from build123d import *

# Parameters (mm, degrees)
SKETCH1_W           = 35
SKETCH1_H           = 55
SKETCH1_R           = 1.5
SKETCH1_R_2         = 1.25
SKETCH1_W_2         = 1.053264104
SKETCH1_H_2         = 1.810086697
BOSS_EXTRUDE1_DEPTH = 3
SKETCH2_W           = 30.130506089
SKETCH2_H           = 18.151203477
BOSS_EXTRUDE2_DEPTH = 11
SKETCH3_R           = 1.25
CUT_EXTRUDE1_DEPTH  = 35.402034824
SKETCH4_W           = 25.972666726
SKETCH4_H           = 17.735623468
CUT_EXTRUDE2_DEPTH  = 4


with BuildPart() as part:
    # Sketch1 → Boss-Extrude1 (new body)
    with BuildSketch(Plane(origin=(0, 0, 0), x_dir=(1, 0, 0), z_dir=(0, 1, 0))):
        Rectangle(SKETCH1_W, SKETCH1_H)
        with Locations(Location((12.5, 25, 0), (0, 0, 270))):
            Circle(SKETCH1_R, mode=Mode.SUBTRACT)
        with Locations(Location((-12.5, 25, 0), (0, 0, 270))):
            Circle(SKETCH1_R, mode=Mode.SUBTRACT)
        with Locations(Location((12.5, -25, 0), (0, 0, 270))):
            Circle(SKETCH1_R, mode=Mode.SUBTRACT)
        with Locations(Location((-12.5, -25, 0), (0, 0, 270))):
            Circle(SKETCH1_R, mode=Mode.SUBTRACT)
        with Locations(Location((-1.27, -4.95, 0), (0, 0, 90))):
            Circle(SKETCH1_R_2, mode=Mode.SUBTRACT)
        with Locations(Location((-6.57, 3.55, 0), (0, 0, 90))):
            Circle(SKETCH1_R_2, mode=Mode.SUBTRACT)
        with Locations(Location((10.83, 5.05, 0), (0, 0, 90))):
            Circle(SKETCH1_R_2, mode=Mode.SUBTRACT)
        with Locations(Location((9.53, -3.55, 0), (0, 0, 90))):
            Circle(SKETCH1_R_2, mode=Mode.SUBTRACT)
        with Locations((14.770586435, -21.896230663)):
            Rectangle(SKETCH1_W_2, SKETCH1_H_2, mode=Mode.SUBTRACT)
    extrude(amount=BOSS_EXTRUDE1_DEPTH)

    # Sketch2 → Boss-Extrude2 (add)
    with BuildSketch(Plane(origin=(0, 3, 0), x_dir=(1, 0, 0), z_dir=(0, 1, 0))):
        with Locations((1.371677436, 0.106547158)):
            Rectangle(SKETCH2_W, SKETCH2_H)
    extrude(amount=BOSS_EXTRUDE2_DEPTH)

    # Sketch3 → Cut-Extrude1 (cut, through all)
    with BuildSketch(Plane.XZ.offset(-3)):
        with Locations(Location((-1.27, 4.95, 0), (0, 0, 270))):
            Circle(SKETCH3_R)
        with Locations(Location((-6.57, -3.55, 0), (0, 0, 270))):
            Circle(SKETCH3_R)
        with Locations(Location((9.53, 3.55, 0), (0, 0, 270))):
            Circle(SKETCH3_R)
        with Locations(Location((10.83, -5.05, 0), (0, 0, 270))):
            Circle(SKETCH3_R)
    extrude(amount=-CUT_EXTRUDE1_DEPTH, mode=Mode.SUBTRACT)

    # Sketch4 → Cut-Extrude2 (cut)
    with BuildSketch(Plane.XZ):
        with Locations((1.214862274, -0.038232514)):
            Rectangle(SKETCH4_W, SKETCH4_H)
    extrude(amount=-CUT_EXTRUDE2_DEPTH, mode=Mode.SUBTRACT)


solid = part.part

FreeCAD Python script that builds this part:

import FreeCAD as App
import Part
import Sketcher
from FreeCAD import Vector


def add_polygon(sketch, points):
    """Adds a closed chain of lines whose ends are joined by coincident constraints."""
    first, n = sketch.GeometryCount, len(points)
    for a, b in zip(points, points[1:] + points[:1]):
        sketch.addGeometry(Part.LineSegment(App.Vector(*a, 0), App.Vector(*b, 0)), False)
    for i in range(n):
        sketch.addConstraint(Sketcher.Constraint("Coincident", first + i, 2, first + (i + 1) % n, 1))

doc = App.newDocument("Part")
params = doc.addObject("Spreadsheet::Sheet", "Params")
for row, (alias, value) in enumerate([
    ("sketch1_diameter", "3 mm"),
    ("sketch1_diameter2", "2.5 mm"),
    ("sketch1_width", "35 mm"),
    ("sketch1_height", "55 mm"),
    ("pad1_length", "3 mm"),
    ("pad2_length", "11 mm"),
    ("sketch3_diameter", "2.5 mm"),
    ("pocket2_length", "4 mm"),
], start=1):
    params.set(f"A{row}", alias)
    params.set(f"B{row}", "=" + value)
    params.setAlias(f"B{row}", alias)

body = doc.addObject("PartDesign::Body", "Body")

# Sketch on XZ plane
sketch1 = doc.addObject("Sketcher::SketchObject", "Sketch")
body.addObject(sketch1)
sketch1.AttachmentSupport = (doc.XZ_Plane, [""])
sketch1.MapMode = "FlatFace"
add_polygon(sketch1, [(-17.5, -27.5), (-17.5, 27.5), (17.5, 27.5), (17.5, -27.5)])  # lines 0-3
sketch1.addGeometry(Part.Circle(Vector(-12.5, 25, 0), Vector(0, 0, 1), 1.5), False)  # 4
sketch1.addGeometry(Part.Circle(Vector(-1.27, 4.95, 0), Vector(0, 0, 1), 1.25), False)  # 5
sketch1.addGeometry(Part.Circle(Vector(12.5, 25, 0), Vector(0, 0, 1), 1.5), False)  # 6
add_polygon(sketch1, [(15.297218, 22.801274), (14.243954, 22.801274), (14.243954, 20.991187), (15.297218, 20.991187)])  # lines 7-10
sketch1.addGeometry(Part.Circle(Vector(9.53, 3.55, 0), Vector(0, 0, 1), 1.25), False)  # 11
sketch1.addGeometry(Part.Circle(Vector(-6.57, -3.55, 0), Vector(0, 0, 1), 1.25), False)  # 12
sketch1.addGeometry(Part.Circle(Vector(-12.5, -25, 0), Vector(0, 0, 1), 1.5), False)  # 13
sketch1.addGeometry(Part.Circle(Vector(10.83, -5.05, 0), Vector(0, 0, 1), 1.25), False)  # 14
sketch1.addGeometry(Part.Circle(Vector(12.5, -25, 0), Vector(0, 0, 1), 1.5), False)  # 15
sketch1.addConstraint([
    Sketcher.Constraint("Vertical", 0),
    Sketcher.Constraint("Horizontal", 1),
    Sketcher.Constraint("Vertical", 2),
    Sketcher.Constraint("Horizontal", 3),
    Sketcher.Constraint("Horizontal", 7),
    Sketcher.Constraint("Vertical", 8),
    Sketcher.Constraint("Horizontal", 9),
    Sketcher.Constraint("Vertical", 10),
    Sketcher.Constraint("Equal", 4, 6),
    Sketcher.Constraint("Equal", 5, 11),
    Sketcher.Constraint("Equal", 11, 12),
    Sketcher.Constraint("Equal", 6, 13),
    Sketcher.Constraint("Equal", 12, 14),
    Sketcher.Constraint("Equal", 13, 15),
    Sketcher.Constraint("Symmetric", 6, 3, 13, 3, -1, 1),
    Sketcher.Constraint("Symmetric", 4, 3, 15, 3, -1, 1),
    Sketcher.Constraint("Symmetric", 0, 2, 2, 2, -1, 1),
    Sketcher.Constraint("Symmetric", 4, 3, 6, 3, -2),
    Sketcher.Constraint("Diameter", 4, 3.0),
    Sketcher.Constraint("Diameter", 5, 2.5),
    Sketcher.Constraint("DistanceX", 1, 1, 1, 2, 35.0),
    Sketcher.Constraint("DistanceY", 0, 1, 0, 2, 55.0),
    Sketcher.Constraint("DistanceY", -1, 1, 4, 3, 25.0),
    Sketcher.Constraint("DistanceX", 4, 3, 6, 3, 25.0),
    Sketcher.Constraint("DistanceY", 14, 3, 5, 3, 10.0),
    Sketcher.Constraint("DistanceX", 5, 3, 11, 3, 10.8),
    Sketcher.Constraint("DistanceY", 11, 3, 5, 3, 1.4),
    Sketcher.Constraint("DistanceX", 12, 3, 5, 3, 5.3),
    Sketcher.Constraint("DistanceY", 12, 3, 5, 3, 8.5),
    Sketcher.Constraint("DistanceX", 11, 3, 14, 3, 1.3),
    Sketcher.Constraint("DistanceX", 5, 3, -1, 1, 1.27),
    Sketcher.Constraint("DistanceY", -1, 1, 5, 3, 4.95),
    Sketcher.Constraint("DistanceX", 7, 2, 7, 1, 1.053264),
    Sketcher.Constraint("DistanceY", 8, 2, 8, 1, 1.810087),
    Sketcher.Constraint("DistanceX", -1, 1, 9, 2, 15.297218),
    Sketcher.Constraint("DistanceY", -1, 1, 7, 2, 22.801274),
])
sketch1.setExpression("Constraints[26]", "Params.sketch1_diameter")
sketch1.setExpression("Constraints[27]", "Params.sketch1_diameter2")
sketch1.setExpression("Constraints[28]", "Params.sketch1_width")
sketch1.setExpression("Constraints[29]", "Params.sketch1_height")
pad1 = doc.addObject("PartDesign::Pad", "Pad")
body.addObject(pad1)
pad1.Profile = sketch1
pad1.setExpression("Length", "Params.pad1_length")
pad1.Reversed = True

# Sketch on XZ plane
sketch2 = doc.addObject("Sketcher::SketchObject", "Sketch001")
body.addObject(sketch2)
sketch2.AttachmentSupport = (doc.XZ_Plane, [""])
sketch2.MapMode = "FlatFace"
sketch2.AttachmentOffset = App.Placement(Vector(0, 0, -3), App.Rotation())
add_polygon(sketch2, [(-13.693576, -9.182149), (-13.693576, 8.969055), (16.43693, 8.969055), (16.43693, -9.182149)])  # lines 0-3
sketch2.addConstraint([
    Sketcher.Constraint("Vertical", 0),
    Sketcher.Constraint("Horizontal", 1),
    Sketcher.Constraint("Vertical", 2),
    Sketcher.Constraint("Horizontal", 3),
    Sketcher.Constraint("DistanceX", 1, 1, 1, 2, 30.130506),
    Sketcher.Constraint("DistanceY", 0, 1, 0, 2, 18.151203),
    Sketcher.Constraint("DistanceX", -1, 1, 1, 2, 16.43693),
    Sketcher.Constraint("DistanceY", 2, 2, -1, 1, 9.182149),
])
pad2 = doc.addObject("PartDesign::Pad", "Pad001")
body.addObject(pad2)
pad2.Profile = sketch2
pad2.setExpression("Length", "Params.pad2_length")
pad2.Reversed = True

# Sketch on XZ plane
sketch3 = doc.addObject("Sketcher::SketchObject", "Sketch002")
body.addObject(sketch3)
sketch3.AttachmentSupport = (doc.XZ_Plane, [""])
sketch3.MapMode = "FlatFace"
sketch3.AttachmentOffset = App.Placement(Vector(0, 0, -3), App.Rotation())
sketch3.addGeometry([
    Part.Circle(Vector(-1.27, 4.95, 0), Vector(0, 0, 1), 1.25),
    Part.Circle(Vector(-6.57, -3.55, 0), Vector(0, 0, 1), 1.25),
    Part.Circle(Vector(9.53, 3.55, 0), Vector(0, 0, 1), 1.25),
    Part.Circle(Vector(10.83, -5.05, 0), Vector(0, 0, 1), 1.25),
], False)
sketch3.addConstraint([
    Sketcher.Constraint("Equal", 0, 1),
    Sketcher.Constraint("Equal", 1, 2),
    Sketcher.Constraint("Equal", 2, 3),
    Sketcher.Constraint("Diameter", 0, 2.5),
    Sketcher.Constraint("DistanceY", 3, 3, 0, 3, 10.0),
    Sketcher.Constraint("DistanceX", 1, 3, 0, 3, 5.3),
    Sketcher.Constraint("DistanceY", 1, 3, 0, 3, 8.5),
    Sketcher.Constraint("DistanceX", 0, 3, 2, 3, 10.8),
    Sketcher.Constraint("DistanceY", 2, 3, 0, 3, 1.4),
    Sketcher.Constraint("DistanceX", 2, 3, 3, 3, 1.3),
    Sketcher.Constraint("DistanceX", 0, 3, -1, 1, 1.27),
    Sketcher.Constraint("DistanceY", -1, 1, 0, 3, 4.95),
])
sketch3.setExpression("Constraints[3]", "Params.sketch3_diameter")
pocket1 = doc.addObject("PartDesign::Pocket", "Pocket")
body.addObject(pocket1)
pocket1.Profile = sketch3
pocket1.Type = "ThroughAll"

# Sketch on XZ plane
sketch4 = doc.addObject("Sketcher::SketchObject", "Sketch003")
body.addObject(sketch4)
sketch4.AttachmentSupport = (doc.XZ_Plane, [""])
sketch4.MapMode = "FlatFace"
add_polygon(sketch4, [(-11.771471, 8.829579), (-11.771471, -8.906044), (14.201196, -8.906044), (14.201196, 8.829579)])  # lines 0-3
sketch4.addConstraint([
    Sketcher.Constraint("Vertical", 0),
    Sketcher.Constraint("Horizontal", 1),
    Sketcher.Constraint("Vertical", 2),
    Sketcher.Constraint("Horizontal", 3),
    Sketcher.Constraint("DistanceX", 1, 1, 1, 2, 25.972667),
    Sketcher.Constraint("DistanceY", 0, 2, 0, 1, 17.735623),
    Sketcher.Constraint("DistanceX", 0, 2, -1, 1, 11.771471),
    Sketcher.Constraint("DistanceY", -1, 1, 2, 2, 8.829579),
])
pocket2 = doc.addObject("PartDesign::Pocket", "Pocket001")
body.addObject(pocket2)
pocket2.Profile = sketch4
pocket2.setExpression("Length", "Params.pocket2_length")

doc.recompute()
